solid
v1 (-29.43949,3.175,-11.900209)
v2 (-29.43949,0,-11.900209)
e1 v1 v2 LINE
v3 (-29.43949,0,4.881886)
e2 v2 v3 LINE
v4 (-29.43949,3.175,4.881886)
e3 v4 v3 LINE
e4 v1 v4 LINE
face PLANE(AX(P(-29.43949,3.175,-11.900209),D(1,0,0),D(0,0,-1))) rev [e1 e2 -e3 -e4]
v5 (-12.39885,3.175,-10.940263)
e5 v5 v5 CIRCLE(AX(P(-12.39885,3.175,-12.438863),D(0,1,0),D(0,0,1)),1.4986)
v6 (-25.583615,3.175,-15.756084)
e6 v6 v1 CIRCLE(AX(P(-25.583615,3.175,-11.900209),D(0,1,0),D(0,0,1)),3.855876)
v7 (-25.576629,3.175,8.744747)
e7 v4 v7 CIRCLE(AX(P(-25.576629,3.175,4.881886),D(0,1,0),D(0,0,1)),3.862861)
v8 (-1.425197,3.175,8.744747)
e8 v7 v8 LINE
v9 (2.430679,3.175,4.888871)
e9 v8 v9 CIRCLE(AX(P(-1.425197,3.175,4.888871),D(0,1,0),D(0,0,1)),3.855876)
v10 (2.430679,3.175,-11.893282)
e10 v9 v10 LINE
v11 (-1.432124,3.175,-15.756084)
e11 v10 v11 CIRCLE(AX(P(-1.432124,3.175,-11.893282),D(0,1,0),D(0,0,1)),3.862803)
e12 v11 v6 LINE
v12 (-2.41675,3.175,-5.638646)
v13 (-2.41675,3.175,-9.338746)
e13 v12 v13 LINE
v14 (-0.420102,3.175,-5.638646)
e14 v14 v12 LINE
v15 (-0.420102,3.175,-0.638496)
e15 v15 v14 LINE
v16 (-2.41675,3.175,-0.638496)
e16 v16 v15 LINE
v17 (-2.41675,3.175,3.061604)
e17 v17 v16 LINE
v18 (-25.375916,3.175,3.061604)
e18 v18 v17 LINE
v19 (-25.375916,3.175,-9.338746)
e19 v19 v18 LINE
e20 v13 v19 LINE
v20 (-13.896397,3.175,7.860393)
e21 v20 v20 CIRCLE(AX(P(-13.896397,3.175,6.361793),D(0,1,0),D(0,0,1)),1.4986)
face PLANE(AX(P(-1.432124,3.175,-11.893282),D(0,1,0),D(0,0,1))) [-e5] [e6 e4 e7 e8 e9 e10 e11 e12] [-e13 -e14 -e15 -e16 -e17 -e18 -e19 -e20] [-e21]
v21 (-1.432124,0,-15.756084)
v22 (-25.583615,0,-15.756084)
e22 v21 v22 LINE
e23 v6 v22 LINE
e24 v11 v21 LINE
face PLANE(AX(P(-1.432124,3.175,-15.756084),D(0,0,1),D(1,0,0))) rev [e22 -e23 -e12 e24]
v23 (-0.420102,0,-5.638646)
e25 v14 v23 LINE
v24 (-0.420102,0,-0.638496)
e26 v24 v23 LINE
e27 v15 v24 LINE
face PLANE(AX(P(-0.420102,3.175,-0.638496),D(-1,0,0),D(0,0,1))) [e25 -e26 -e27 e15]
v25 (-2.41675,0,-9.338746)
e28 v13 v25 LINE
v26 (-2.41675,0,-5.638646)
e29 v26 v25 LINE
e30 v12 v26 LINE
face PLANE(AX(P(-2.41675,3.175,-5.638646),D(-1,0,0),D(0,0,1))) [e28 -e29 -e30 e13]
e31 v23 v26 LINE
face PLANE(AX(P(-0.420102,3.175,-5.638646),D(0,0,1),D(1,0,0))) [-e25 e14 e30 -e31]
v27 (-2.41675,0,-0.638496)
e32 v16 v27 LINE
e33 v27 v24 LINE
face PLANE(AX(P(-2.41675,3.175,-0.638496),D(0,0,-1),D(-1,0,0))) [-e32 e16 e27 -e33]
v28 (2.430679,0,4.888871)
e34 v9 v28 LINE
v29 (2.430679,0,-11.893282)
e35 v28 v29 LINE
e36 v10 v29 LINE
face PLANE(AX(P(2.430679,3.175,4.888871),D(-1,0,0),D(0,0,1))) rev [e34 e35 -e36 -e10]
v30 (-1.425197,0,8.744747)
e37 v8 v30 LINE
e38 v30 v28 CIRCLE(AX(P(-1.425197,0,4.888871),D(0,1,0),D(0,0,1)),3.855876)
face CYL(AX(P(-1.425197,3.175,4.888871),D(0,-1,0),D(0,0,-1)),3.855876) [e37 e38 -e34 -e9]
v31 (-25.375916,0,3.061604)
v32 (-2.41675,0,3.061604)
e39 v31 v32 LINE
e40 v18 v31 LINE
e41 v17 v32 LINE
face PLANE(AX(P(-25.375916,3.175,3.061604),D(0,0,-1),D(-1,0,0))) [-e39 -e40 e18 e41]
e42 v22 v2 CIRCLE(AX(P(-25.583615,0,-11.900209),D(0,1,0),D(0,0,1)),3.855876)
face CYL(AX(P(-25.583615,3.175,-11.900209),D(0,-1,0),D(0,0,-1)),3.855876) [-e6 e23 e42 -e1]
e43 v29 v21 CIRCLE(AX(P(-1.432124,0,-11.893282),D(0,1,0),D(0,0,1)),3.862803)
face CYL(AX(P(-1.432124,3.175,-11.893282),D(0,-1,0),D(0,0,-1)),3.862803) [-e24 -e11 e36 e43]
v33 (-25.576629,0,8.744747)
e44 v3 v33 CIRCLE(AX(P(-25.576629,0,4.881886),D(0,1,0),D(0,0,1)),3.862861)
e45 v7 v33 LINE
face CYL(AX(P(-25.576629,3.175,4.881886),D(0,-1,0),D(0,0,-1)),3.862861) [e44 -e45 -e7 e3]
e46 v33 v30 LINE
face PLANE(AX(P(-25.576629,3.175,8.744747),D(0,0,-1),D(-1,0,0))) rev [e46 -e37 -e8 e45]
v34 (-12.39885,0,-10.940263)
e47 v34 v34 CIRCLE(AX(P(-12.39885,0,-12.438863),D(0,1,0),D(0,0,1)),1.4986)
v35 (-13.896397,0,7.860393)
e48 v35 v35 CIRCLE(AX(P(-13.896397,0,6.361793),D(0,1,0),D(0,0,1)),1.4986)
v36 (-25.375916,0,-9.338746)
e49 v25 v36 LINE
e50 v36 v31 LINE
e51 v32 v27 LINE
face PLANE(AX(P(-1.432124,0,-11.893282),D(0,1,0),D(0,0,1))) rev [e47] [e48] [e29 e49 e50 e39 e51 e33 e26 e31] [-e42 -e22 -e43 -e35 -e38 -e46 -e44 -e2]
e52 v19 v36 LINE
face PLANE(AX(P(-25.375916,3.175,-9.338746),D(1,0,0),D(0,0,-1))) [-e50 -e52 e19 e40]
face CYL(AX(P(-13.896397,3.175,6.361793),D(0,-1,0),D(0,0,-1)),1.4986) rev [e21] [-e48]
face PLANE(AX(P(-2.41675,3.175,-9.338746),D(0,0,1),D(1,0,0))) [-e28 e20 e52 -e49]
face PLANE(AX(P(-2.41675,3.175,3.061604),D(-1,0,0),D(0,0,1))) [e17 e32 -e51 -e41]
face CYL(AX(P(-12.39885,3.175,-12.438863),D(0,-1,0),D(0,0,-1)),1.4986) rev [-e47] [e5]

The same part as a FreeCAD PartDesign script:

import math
import FreeCAD as App
import Part
import Sketcher
Q = App.Units.Quantity


def add_polygon(sketch, points):
    """Adds a closed chain of lines whose ends are joined by coincident constraints."""
    first, n = sketch.GeometryCount, len(points)
    for a, b in zip(points, points[1:] + points[:1]):
        sketch.addGeometry(Part.LineSegment(App.Vector(*a, 0), App.Vector(*b, 0)), False)
    for i in range(n):
        sketch.addConstraint(Sketcher.Constraint("Coincident", first + i, 2, first + (i + 1) % n, 1))

doc = App.newDocument("Part")
body = doc.addObject("PartDesign::Body", "Body")

# Sketch on XZ plane
sketch1 = body.newObject("Sketcher::SketchObject", "Sketch")
sketch1.AttachmentSupport = (doc.getObject("XZ_Plane"), [""])
sketch1.MapMode = "FlatFace"
sketch1.addGeometry(Part.LineSegment(App.Vector(-1.432124, -15.756084, 0), App.Vector(-25.583615, -15.756084, 0)), False)  # 0
sketch1.addGeometry(Part.ArcOfCircle(Part.Circle(App.Vector(-25.583615, -11.900209, 0), App.Vector(0, 0, 1), 3.855876), math.radians(-180), math.radians(-90)), False)  # 1
sketch1.addGeometry(Part.LineSegment(App.Vector(-29.43949, -11.900209, 0), App.Vector(-29.43949, 4.881886, 0)), False)  # 2
sketch1.addGeometry(Part.ArcOfCircle(Part.Circle(App.Vector(-25.576629, 4.881886, 0), App.Vector(0, 0, 1), 3.862861), math.radians(90), math.radians(180)), False)  # 3
sketch1.addGeometry(Part.LineSegment(App.Vector(-25.576629, 8.744747, 0), App.Vector(-1.425197, 8.744747, 0)), False)  # 4
sketch1.addGeometry(Part.ArcOfCircle(Part.Circle(App.Vector(-1.425197, 4.888871, 0), App.Vector(0, 0, 1), 3.855876), math.radians(0), math.radians(90)), False)  # 5
sketch1.addGeometry(Part.LineSegment(App.Vector(2.430679, 4.888871, 0), App.Vector(2.430679, -11.893282, 0)), False)  # 6
sketch1.addGeometry(Part.ArcOfCircle(Part.Circle(App.Vector(-1.432124, -11.893282, 0), App.Vector(0, 0, 1), 3.862803), math.radians(-90), math.radians(0)), False)  # 7
sketch1.addGeometry(Part.Circle(App.Vector(-13.896397, 6.361793, 0), App.Vector(0, 0, 1), 1.4986), False)  # 8
add_polygon(sketch1, [(-25.375916, -9.338746), (-2.41675, -9.338746), (-2.41675, -5.638646), (-0.420102, -5.638646), (-0.420102, -0.638496), (-2.41675, -0.638496), (-2.41675, 3.061604), (-25.375916, 3.061604)])  # lines 9-16
sketch1.addGeometry(Part.Circle(App.Vector(-12.39885, -12.438863, 0), App.Vector(0, 0, 1), 1.4986), False)  # 17
sketch1.addConstraint([
    Sketcher.Constraint("Tangent", 0, 2, 1, 2),
    Sketcher.Constraint("Tangent", 1, 1, 2, 1),
    Sketcher.Constraint("Tangent", 2, 2, 3, 2),
    Sketcher.Constraint("Tangent", 3, 1, 4, 1),
    Sketcher.Constraint("Tangent", 4, 2, 5, 2),
    Sketcher.Constraint("Tangent", 5, 1, 6, 1),
    Sketcher.Constraint("Tangent", 6, 2, 7, 2),
    Sketcher.Constraint("Tangent", 7, 1, 0, 1),
    Sketcher.Constraint("Horizontal", 0),
    Sketcher.Constraint("Vertical", 2),
    Sketcher.Constraint("Horizontal", 4),
    Sketcher.Constraint("Vertical", 6),
    Sketcher.Constraint("Horizontal", 9),
    Sketcher.Constraint("Vertical", 10),
    Sketcher.Constraint("Horizontal", 11),
    Sketcher.Constraint("Vertical", 12),
    Sketcher.Constraint("Horizontal", 13),
    Sketcher.Constraint("Vertical", 14),
    Sketcher.Constraint("Horizontal", 15),
    Sketcher.Constraint("Vertical", 16),
    Sketcher.Constraint("Equal", 1, 5),
    Sketcher.Constraint("Equal", 8, 17),
    Sketcher.Constraint("Vertical", 10, 2, 13, 2),
    Sketcher.Constraint("Equal", 10, 14),
    Sketcher.Constraint("Diameter", 8, Q("0.118 in")),
    Sketcher.Constraint("Radius", 3, Q("3.862861 mm")),
    Sketcher.Constraint("DistanceY", 10, 1, 10, 2, Q("3.7001 mm")),
    Sketcher.Constraint("Radius", 1, Q("3.855876 mm")),
    Sketcher.Constraint("Radius", 7, Q("3.862803 mm")),
    Sketcher.Constraint("DistanceX", 0, 2, 0, 1, Q("24.151491 mm")),
    Sketcher.Constraint("DistanceY", 12, 1, 12, 2, Q("5.00015 mm")),
    Sketcher.Constraint("DistanceX", 8, 3, 5, 3, Q("12.4712 mm")),
    Sketcher.Constraint("DistanceY", 1, 3, 8, 3, Q("18.262002 mm")),
    Sketcher.Constraint("DistanceX", 17, 3, 9, 2, Q("9.982099 mm")),
    Sketcher.Constraint("DistanceX", 1, 3, 15, 2, Q("0.207698 mm")),
    Sketcher.Constraint("DistanceX", 9, 1, 9, 2, Q("22.959166 mm")),
    Sketcher.Constraint("DistanceX", 11, 1, 11, 2, Q("1.996648 mm")),
    Sketcher.Constraint("DistanceY", 2, 1, 2, 2, Q("16.782095 mm")),
    Sketcher.Constraint("DistanceY", 1, 3, -1, 1, Q("11.900209 mm")),
    Sketcher.Constraint("DistanceX", 3, 3, -1, 1, Q("25.576629 mm")),
    Sketcher.Constraint("DistanceY", 17, 3, 7, 3, Q("0.545581 mm")),
    Sketcher.Constraint("DistanceY", 7, 1, 9, 2, Q("6.417338 mm")),
])
pad1 = body.newObject("PartDesign::Pad", "Pad")
pad1.Profile = sketch1
pad1.Length = Q("0.125 in")
pad1.Reversed = True

doc.recompute()
